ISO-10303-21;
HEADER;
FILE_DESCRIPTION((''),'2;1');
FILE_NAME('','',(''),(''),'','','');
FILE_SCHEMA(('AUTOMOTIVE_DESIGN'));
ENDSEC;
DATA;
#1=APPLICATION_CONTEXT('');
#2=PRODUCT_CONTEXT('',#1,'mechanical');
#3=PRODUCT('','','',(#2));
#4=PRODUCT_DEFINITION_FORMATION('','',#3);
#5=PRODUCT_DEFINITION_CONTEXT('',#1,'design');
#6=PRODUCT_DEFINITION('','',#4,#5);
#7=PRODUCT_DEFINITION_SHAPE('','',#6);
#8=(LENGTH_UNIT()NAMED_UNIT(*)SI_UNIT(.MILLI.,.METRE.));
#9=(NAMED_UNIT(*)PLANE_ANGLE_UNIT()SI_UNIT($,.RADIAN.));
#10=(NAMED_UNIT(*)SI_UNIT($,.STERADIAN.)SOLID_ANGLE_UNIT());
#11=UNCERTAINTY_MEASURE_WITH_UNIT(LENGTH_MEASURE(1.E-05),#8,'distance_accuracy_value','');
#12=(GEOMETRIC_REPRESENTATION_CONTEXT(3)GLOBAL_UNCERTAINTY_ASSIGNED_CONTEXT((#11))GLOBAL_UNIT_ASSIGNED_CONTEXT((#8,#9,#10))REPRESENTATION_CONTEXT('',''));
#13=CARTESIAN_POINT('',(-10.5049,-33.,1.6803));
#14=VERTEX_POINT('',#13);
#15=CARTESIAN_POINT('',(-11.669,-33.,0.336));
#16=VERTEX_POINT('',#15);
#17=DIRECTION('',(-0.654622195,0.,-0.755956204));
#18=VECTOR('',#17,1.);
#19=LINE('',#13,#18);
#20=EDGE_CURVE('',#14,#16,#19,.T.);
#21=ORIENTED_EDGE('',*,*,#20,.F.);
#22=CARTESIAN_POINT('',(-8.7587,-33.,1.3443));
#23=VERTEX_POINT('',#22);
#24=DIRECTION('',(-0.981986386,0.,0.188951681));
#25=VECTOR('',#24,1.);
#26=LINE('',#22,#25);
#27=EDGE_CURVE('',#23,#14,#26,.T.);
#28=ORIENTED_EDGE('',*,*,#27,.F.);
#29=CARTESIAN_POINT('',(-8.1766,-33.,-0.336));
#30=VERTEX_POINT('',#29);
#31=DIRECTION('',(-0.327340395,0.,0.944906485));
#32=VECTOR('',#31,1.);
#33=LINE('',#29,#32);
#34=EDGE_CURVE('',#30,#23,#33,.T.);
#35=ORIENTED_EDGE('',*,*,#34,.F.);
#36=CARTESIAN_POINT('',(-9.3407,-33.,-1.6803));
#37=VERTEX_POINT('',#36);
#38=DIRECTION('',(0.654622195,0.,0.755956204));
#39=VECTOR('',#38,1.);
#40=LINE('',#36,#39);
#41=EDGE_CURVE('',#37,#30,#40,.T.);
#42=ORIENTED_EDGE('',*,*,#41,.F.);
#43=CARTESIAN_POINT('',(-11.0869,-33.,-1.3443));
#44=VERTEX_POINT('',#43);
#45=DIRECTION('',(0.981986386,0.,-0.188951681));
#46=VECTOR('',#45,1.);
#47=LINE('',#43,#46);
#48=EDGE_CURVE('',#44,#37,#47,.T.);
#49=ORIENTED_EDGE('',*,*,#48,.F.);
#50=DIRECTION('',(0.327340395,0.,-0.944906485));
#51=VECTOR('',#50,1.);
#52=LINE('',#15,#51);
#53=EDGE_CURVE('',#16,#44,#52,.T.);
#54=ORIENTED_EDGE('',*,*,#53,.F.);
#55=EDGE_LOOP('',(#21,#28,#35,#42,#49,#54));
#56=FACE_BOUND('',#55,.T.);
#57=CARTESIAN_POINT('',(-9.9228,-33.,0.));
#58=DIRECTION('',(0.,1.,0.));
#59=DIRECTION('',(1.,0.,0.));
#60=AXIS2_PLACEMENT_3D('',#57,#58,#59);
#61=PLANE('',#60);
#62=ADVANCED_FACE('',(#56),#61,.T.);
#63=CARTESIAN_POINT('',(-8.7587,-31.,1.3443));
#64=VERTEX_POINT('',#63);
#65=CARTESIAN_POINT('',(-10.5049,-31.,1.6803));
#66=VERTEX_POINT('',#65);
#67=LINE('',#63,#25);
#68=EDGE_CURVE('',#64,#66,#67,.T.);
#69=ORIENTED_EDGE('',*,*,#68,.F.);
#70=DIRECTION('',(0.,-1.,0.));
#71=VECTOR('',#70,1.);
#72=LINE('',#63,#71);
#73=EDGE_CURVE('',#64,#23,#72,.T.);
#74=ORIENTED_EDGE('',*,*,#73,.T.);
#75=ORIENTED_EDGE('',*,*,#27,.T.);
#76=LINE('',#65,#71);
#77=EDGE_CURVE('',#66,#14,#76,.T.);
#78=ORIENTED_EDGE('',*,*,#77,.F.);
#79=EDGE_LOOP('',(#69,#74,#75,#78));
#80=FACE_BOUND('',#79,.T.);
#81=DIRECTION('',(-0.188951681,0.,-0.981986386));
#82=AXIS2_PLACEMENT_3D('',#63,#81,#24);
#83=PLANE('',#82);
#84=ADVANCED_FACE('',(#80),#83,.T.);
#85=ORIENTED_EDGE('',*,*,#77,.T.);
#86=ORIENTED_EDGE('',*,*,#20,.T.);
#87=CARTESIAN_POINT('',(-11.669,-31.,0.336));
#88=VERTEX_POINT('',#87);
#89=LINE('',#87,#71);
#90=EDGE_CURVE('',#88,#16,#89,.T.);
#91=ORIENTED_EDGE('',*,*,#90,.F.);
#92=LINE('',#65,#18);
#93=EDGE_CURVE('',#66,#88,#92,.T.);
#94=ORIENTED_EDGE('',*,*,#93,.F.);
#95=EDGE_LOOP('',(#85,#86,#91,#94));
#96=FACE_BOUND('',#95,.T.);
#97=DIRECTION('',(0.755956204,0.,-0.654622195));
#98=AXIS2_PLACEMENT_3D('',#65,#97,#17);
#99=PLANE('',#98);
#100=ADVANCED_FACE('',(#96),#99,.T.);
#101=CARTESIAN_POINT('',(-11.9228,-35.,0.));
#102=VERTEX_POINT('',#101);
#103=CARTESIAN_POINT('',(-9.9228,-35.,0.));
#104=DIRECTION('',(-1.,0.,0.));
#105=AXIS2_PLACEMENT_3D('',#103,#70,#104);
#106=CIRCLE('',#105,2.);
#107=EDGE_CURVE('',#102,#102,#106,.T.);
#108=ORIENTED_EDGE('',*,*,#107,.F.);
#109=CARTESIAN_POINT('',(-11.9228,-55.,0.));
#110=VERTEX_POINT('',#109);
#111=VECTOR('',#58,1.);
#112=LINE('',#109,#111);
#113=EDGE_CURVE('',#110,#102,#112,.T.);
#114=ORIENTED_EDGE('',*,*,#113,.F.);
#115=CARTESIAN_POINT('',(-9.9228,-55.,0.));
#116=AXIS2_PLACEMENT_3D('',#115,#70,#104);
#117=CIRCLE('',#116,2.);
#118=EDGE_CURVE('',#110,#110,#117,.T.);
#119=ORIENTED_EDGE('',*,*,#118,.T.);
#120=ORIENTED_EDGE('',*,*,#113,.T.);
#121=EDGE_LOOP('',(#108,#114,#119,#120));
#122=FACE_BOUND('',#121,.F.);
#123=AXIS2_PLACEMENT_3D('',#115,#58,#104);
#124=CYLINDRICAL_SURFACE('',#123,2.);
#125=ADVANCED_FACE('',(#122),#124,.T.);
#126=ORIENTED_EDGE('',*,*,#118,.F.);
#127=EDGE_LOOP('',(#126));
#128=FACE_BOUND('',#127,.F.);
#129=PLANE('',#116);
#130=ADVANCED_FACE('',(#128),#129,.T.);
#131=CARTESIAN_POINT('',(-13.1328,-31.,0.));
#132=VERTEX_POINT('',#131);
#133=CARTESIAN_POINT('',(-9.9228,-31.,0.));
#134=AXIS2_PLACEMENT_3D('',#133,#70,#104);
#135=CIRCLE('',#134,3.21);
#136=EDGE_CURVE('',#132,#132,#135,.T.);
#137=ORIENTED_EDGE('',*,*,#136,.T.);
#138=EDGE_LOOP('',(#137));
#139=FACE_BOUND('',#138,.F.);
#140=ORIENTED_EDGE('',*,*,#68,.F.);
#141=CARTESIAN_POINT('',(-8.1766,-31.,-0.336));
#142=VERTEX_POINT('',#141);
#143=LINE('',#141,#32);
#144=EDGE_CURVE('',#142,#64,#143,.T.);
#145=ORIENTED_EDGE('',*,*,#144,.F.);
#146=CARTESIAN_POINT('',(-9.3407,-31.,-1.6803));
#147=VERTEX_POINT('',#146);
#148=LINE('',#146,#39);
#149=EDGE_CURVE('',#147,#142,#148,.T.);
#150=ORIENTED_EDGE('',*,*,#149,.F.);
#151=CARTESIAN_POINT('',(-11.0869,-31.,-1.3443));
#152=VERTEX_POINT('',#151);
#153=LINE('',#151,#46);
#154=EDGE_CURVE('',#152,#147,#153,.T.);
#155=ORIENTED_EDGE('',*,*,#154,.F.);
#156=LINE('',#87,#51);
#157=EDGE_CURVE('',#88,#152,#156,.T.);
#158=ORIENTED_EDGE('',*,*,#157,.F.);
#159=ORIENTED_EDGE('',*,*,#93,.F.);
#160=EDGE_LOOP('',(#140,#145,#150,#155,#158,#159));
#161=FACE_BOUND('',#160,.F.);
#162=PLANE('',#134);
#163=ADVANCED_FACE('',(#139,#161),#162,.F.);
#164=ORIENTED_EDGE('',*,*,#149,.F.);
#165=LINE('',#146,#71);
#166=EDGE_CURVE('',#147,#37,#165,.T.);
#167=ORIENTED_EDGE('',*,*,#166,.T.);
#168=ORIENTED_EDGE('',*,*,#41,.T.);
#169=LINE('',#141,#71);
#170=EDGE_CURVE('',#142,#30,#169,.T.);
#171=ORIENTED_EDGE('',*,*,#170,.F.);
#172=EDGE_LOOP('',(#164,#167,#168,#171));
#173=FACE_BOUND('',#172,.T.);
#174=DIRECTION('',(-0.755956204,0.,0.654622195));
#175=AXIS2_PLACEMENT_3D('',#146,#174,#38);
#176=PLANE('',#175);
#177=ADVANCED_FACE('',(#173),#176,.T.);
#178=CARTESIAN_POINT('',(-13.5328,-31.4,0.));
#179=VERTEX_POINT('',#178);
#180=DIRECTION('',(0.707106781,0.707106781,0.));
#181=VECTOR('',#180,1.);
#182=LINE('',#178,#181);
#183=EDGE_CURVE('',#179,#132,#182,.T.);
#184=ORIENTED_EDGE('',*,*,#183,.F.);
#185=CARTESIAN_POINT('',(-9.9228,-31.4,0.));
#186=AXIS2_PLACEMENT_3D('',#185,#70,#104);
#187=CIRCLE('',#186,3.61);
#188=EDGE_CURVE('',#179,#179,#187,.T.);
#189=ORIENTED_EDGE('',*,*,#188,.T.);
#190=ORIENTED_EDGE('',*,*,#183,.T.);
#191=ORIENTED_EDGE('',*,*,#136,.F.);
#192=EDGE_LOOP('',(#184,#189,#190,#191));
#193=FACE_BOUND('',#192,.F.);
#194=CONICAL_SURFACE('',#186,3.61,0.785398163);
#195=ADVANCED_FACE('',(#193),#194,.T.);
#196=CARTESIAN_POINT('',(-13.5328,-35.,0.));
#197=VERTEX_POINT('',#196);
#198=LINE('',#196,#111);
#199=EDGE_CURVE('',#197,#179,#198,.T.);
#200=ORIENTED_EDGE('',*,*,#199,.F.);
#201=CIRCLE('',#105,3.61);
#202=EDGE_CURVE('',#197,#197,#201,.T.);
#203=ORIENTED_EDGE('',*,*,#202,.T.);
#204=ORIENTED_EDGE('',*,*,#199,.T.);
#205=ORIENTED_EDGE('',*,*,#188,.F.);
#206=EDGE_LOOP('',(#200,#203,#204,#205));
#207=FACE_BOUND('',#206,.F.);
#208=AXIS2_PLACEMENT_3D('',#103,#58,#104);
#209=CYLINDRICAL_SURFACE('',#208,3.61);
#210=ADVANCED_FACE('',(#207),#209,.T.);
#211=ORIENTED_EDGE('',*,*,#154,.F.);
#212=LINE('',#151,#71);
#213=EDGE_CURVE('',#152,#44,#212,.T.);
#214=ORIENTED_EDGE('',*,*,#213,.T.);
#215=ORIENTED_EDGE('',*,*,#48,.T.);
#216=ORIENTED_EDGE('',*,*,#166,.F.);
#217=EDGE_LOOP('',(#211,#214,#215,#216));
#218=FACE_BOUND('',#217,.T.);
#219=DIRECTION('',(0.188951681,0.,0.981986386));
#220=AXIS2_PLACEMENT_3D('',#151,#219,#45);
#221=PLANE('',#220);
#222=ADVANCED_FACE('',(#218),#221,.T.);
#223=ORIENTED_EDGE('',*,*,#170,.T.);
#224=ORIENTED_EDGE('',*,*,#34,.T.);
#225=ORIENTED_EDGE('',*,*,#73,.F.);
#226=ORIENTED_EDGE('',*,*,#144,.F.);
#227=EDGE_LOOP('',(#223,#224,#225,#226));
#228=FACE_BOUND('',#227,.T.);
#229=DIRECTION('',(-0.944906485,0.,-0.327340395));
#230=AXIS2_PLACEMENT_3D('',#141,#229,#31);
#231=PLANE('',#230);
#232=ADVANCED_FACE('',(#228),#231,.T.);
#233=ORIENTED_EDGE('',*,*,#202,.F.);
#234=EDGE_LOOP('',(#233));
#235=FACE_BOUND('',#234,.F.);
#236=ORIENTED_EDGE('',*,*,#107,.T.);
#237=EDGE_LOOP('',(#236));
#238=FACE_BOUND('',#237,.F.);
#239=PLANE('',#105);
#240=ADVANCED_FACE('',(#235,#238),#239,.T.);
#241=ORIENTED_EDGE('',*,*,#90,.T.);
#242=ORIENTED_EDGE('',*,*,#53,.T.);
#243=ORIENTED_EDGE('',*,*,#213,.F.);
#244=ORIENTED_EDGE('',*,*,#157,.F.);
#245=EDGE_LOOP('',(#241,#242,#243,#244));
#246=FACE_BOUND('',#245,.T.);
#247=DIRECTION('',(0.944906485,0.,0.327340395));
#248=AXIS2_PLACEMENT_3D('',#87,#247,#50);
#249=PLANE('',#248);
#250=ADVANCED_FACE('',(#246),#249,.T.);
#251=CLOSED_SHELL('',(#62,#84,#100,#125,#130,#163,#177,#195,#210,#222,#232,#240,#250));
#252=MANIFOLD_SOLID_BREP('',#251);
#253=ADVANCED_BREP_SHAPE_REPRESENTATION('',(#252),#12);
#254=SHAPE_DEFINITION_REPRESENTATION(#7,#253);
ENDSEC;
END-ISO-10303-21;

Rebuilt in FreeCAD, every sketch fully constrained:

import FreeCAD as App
import Part
import Sketcher

V = App.Vector
Q = App.Units.Quantity


def edges_at(feature, points):
    """Names of the edges that pass closest to the given points."""
    edges = feature.Shape.Edges
    near = lambda p: min(range(len(edges)), key=lambda i: edges[i].distToShape(Part.Vertex(*p))[0])
    return sorted({f"Edge{near(p) + 1}" for p in points})


def add_polygon(sketch, points):
    """Adds a closed chain of lines whose ends are joined by coincident constraints."""
    first, n = sketch.GeometryCount, len(points)
    for a, b in zip(points, points[1:] + points[:1]):
        sketch.addGeometry(Part.LineSegment(App.Vector(*a, 0), App.Vector(*b, 0)), False)
    for i in range(n):
        sketch.addConstraint(Sketcher.Constraint("Coincident", first + i, 2, first + (i + 1) % n, 1))

doc = App.newDocument("Part")
body = doc.addObject("PartDesign::Body", "Body")

sketch1 = body.newObject("Sketcher::SketchObject", "Sketch")
sketch1.AttachmentSupport = (doc.getObject("XY_Plane"), [""])
sketch1.MapMode = "FlatFace"
add_polygon(sketch1, [(-9.9, -55), (-9.9, -31), (-13.5, -31), (-13.5, -35), (-11.9, -35), (-11.9, -55)])
sketch1.addGeometry(Part.LineSegment(V(-9.9, -31, 0), V(-9.9, -55, 0)), True)
sketch1.addConstraint(Sketcher.Constraint("Vertical", 0))
sketch1.addConstraint(Sketcher.Constraint("Horizontal", 1))
sketch1.addConstraint(Sketcher.Constraint("Vertical", 2))
sketch1.addConstraint(Sketcher.Constraint("Horizontal", 3))
sketch1.addConstraint(Sketcher.Constraint("Vertical", 4))
sketch1.addConstraint(Sketcher.Constraint("Horizontal", 5))
sketch1.addConstraint(Sketcher.Constraint("Vertical", 6))
sketch1.addConstraint(Sketcher.Constraint("Coincident", 6, 1, 0, 2))
sketch1.addConstraint(Sketcher.Constraint("Horizontal", 4, 2, 6, 2))
sketch1.addConstraint(Sketcher.Constraint("DistanceX", 5, 1, 5, 2, 2.0))
sketch1.addConstraint(Sketcher.Constraint("DistanceY", 2, 2, 2, 1, 4.0))
sketch1.addConstraint(Sketcher.Constraint("DistanceY", 4, 2, 4, 1, 20.0))
sketch1.addConstraint(Sketcher.Constraint("DistanceX", 1, 2, 1, 1, 3.61))
sketch1.addConstraint(Sketcher.Constraint("DistanceY", 0, 2, -1, 1, 31.0))
sketch1.addConstraint(Sketcher.Constraint("DistanceX", 0, 2, -1, 1, 9.9228))
revolution = body.newObject("PartDesign::Revolution", "Revolution")
revolution.Profile = sketch1
revolution.ReferenceAxis = (sketch1, ["Axis0"])
revolution.Angle = 360
doc.recompute()

chamfer = body.newObject("PartDesign::Chamfer", "Chamfer")
chamfer.Base = (revolution, edges_at(revolution, [(-6.313, -31, 0)]))
chamfer.Size = 0.4

sketch2 = body.newObject("Sketcher::SketchObject", "Sketch001")
sketch2.AttachmentSupport = (doc.getObject("XZ_Plane"), [""])
sketch2.MapMode = "FlatFace"
sketch2.AttachmentOffset = App.Placement(V(0, 0, 31), App.Rotation())
add_polygon(sketch2, [(-10.5, 1.7), (-8.8, 1.3), (-8.2, -0.3), (-9.3, -1.7), (-11.1, -1.3), (-11.7, 0.3)])
sketch2.addConstraint(Sketcher.Constraint("Parallel", 0, 3))
sketch2.addConstraint(Sketcher.Constraint("Parallel", 1, 4))
sketch2.addConstraint(Sketcher.Constraint("Parallel", 2, 5))
sketch2.addConstraint(Sketcher.Constraint("Equal", 0, 1))
sketch2.addConstraint(Sketcher.Constraint("Equal", 1, 2))
sketch2.addConstraint(Sketcher.Constraint("Equal", 2, 3))
sketch2.addConstraint(Sketcher.Constraint("Angle", 2, Q("-130.891 deg")))
sketch2.addConstraint(Sketcher.Constraint("DistanceY", 1, 2, -1, 1, 0.336))
sketch2.addConstraint(Sketcher.Constraint("DistanceX", 3, 2, -1, 1, 11.087))
sketch2.addConstraint(Sketcher.Constraint("DistanceX", 4, 2, -1, 1, 11.669))
sketch2.addConstraint(Sketcher.Constraint("DistanceY", -1, 1, 4, 2, 0.336))
sketch2.addConstraint(Sketcher.Constraint("DistanceX", 5, 2, -1, 1, 10.505))
pocket1 = body.newObject("PartDesign::Pocket", "Pocket")
pocket1.Profile = sketch2
pocket1.Length = 2
pocket1.Reversed = True

doc.recompute()
